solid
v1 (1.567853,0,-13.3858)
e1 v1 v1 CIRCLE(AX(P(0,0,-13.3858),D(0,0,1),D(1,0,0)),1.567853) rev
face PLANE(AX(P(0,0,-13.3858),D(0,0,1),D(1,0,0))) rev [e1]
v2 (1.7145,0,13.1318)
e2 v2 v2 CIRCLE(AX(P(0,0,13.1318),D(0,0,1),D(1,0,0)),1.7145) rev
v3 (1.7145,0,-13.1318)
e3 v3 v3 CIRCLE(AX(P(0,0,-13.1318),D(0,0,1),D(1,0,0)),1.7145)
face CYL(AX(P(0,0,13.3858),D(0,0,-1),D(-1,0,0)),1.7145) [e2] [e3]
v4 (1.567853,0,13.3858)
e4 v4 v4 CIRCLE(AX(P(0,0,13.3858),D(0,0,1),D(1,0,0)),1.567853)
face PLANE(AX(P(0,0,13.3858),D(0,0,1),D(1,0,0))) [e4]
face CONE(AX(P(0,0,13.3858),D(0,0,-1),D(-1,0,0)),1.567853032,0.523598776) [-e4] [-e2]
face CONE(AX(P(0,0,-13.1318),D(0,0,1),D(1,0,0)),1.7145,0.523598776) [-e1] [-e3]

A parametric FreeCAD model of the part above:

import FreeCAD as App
import Part
import Sketcher
Q = App.Units.Quantity


def edges_at(feature, points):
    """Names of the edges that pass closest to the given points."""
    edges = feature.Shape.Edges
    near = lambda p: min(range(len(edges)), key=lambda i: edges[i].distToShape(Part.Vertex(*p))[0])
    return sorted({f"Edge{near(p) + 1}" for p in points})

doc = App.newDocument("Part")
body = doc.addObject("PartDesign::Body", "Body")

sketch1 = body.newObject("Sketcher::SketchObject", "Sketch")
sketch1.AttachmentSupport = (doc.getObject("XY_Plane"), [""])
sketch1.MapMode = "FlatFace"
sketch1.addGeometry(Part.Circle(App.Vector(0, 0, 0), App.Vector(0, 0, 1), 1.7), False)
sketch1.addConstraint(Sketcher.Constraint("Coincident", 0, 3, -1, 1))
sketch1.addConstraint(Sketcher.Constraint("Diameter", 0, Q("0.135 in")))
pad1 = body.newObject("PartDesign::Pad", "Pad")
pad1.Profile = sketch1
pad1.Length = Q("1.054 in")
pad1.Midplane = True
doc.recompute()

chamfer = body.newObject("PartDesign::Chamfer", "Chamfer")
chamfer.Base = (pad1, edges_at(pad1, [(-1.714, 0, 13.386)]))
chamfer.ChamferType = "Two distances"
chamfer.Size = Q("0.01 in")
chamfer.Size2 = 0.146647
doc.recompute()

chamfer2 = body.newObject("PartDesign::Chamfer", "Chamfer001")
chamfer2.Base = (chamfer, edges_at(chamfer, [(-1.714, 0, -13.386)]))
chamfer2.ChamferType = "Two distances"
chamfer2.Size = Q("0.01 in")
chamfer2.Size2 = 0.146647

doc.recompute()
